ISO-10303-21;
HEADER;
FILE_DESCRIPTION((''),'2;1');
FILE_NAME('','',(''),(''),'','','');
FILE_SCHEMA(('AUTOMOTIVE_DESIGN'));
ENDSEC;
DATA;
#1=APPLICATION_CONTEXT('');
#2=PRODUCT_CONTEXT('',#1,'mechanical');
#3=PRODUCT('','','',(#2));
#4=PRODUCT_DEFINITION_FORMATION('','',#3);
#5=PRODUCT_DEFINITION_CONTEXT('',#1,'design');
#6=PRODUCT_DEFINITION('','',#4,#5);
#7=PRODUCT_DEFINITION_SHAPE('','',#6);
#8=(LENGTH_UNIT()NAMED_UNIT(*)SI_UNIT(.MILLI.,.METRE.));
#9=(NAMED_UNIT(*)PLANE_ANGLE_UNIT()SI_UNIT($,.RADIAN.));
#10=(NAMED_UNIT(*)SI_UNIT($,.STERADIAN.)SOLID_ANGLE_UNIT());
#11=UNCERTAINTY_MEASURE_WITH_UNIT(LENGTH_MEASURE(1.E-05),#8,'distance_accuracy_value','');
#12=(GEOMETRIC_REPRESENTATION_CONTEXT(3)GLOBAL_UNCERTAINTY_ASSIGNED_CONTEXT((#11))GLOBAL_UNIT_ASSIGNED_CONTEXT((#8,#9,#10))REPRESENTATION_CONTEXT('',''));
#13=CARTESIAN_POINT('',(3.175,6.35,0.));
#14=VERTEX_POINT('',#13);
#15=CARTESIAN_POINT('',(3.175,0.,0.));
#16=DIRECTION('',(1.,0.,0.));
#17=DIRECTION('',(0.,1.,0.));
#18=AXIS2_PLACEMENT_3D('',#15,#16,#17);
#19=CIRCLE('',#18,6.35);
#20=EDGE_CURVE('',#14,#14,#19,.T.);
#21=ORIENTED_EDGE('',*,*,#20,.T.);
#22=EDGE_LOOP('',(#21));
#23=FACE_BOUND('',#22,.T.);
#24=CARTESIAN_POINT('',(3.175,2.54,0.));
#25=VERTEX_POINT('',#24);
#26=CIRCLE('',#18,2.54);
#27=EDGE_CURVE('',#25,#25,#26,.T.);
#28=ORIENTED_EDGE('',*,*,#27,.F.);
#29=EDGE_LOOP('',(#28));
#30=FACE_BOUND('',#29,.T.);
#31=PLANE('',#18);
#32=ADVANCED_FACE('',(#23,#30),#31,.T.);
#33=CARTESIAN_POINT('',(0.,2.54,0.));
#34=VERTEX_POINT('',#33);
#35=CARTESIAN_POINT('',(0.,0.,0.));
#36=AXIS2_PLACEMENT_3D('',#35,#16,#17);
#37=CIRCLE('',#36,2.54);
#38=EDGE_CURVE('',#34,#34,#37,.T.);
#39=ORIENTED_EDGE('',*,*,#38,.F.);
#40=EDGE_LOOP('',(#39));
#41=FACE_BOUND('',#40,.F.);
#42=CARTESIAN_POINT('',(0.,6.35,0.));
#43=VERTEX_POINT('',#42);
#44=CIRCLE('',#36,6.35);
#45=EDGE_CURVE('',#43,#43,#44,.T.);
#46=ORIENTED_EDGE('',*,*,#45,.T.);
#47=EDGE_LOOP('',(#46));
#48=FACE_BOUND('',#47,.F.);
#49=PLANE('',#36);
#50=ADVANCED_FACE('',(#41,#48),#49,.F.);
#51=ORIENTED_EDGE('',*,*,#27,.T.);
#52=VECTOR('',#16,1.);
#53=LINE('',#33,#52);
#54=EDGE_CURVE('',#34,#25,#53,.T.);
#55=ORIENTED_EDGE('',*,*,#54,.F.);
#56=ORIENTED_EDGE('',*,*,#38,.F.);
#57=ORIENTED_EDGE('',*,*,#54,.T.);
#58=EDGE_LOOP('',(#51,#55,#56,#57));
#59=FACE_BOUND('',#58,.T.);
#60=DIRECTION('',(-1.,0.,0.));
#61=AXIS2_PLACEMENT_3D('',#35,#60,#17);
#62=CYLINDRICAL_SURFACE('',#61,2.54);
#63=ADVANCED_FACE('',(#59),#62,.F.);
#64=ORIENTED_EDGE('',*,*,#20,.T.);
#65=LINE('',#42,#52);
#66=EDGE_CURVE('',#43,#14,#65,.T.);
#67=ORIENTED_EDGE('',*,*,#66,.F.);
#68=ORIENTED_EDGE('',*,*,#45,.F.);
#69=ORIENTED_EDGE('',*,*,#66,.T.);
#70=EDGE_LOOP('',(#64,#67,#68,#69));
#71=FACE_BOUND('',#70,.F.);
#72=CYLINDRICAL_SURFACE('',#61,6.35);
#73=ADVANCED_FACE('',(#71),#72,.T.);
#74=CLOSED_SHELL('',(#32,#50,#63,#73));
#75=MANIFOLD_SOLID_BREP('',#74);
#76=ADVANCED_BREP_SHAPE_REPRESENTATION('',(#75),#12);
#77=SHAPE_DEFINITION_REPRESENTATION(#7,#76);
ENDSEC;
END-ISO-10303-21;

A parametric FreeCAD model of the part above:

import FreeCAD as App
import Part
import Sketcher
from FreeCAD import Vector
Q = App.Units.Quantity

doc = App.newDocument("Part")
body = doc.addObject("PartDesign::Body", "Body")

# Sketch on YZ plane
sketch1 = body.newObject("Sketcher::SketchObject", "Sketch")
sketch1.AttachmentSupport = (doc.getObject("YZ_Plane"), [""])
sketch1.MapMode = "FlatFace"
sketch1.addGeometry([
    Part.Circle(Vector(0, 0, 0), Vector(0, 0, 1), 6.35),
    Part.Circle(Vector(0, 0, 0), Vector(0, 0, 1), 2.54),
], False)
sketch1.addConstraint([
    Sketcher.Constraint("Coincident", 0, 3, -1, 1),
    Sketcher.Constraint("Coincident", 1, 3, -1, 1),
    Sketcher.Constraint("Diameter", 1, Q("0.2 in")),
    Sketcher.Constraint("Diameter", 0, Q("0.5 in")),
])
pad1 = body.newObject("PartDesign::Pad", "Pad")
pad1.Profile = sketch1
pad1.Length = Q("0.125 in")

doc.recompute()
